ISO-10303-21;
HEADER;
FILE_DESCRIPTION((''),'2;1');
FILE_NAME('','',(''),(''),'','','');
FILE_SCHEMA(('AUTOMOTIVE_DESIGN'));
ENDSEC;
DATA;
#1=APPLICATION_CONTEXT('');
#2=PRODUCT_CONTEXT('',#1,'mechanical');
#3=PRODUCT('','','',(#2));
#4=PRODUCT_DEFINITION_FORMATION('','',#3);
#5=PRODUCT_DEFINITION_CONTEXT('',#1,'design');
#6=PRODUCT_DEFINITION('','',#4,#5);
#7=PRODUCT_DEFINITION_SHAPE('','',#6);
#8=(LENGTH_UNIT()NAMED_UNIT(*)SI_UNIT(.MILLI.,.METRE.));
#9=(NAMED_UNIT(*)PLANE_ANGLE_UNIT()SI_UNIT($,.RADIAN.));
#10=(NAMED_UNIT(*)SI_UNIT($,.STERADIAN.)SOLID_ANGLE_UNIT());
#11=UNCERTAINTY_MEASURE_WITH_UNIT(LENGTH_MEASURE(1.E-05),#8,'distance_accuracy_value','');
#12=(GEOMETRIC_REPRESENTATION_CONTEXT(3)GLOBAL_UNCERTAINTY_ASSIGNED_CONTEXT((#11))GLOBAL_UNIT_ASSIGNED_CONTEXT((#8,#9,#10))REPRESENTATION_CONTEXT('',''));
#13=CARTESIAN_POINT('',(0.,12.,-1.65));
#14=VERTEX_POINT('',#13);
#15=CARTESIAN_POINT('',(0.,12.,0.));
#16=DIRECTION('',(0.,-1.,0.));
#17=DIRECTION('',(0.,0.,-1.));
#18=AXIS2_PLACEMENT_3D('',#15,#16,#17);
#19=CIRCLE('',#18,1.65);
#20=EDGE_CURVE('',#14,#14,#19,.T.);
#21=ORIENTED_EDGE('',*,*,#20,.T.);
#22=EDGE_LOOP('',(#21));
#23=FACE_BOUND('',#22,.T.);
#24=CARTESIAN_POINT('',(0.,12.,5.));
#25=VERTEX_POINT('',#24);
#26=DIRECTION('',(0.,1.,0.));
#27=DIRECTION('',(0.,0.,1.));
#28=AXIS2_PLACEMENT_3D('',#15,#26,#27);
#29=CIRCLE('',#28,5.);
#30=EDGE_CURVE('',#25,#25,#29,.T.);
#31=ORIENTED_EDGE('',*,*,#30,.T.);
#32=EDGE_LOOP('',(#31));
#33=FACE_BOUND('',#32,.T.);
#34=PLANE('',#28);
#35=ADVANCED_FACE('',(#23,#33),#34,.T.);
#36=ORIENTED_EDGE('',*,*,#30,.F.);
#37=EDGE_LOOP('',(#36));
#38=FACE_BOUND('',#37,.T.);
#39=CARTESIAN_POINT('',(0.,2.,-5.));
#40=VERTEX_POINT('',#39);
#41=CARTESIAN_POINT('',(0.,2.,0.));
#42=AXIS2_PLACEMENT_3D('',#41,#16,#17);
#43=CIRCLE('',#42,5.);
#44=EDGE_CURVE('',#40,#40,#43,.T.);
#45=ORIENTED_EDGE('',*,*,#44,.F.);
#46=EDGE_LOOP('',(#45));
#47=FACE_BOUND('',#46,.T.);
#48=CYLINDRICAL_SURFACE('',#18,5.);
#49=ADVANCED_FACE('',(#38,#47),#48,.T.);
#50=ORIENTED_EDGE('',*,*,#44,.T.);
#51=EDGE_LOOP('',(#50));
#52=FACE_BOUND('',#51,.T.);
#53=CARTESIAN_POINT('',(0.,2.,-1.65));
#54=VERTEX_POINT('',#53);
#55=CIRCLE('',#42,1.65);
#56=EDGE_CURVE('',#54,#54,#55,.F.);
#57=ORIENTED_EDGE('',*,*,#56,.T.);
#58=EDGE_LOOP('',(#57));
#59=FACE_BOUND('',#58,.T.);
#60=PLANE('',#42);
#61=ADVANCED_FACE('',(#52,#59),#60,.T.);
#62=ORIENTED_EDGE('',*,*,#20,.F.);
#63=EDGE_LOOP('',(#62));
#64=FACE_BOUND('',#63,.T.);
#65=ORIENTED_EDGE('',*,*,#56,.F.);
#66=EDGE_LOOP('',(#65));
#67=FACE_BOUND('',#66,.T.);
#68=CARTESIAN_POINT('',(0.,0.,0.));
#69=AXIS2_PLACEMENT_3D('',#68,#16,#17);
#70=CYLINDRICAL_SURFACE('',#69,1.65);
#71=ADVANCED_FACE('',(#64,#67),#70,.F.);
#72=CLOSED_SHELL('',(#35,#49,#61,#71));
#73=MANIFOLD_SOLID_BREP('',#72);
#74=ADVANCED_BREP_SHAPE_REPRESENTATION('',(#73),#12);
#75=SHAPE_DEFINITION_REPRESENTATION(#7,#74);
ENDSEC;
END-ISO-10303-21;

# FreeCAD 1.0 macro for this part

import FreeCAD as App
import Part
import Sketcher

V = App.Vector

doc = App.newDocument("Part")
body = doc.addObject("PartDesign::Body", "Body")

sketch1 = doc.addObject("Sketcher::SketchObject", "Sketch")
body.addObject(sketch1)
sketch1.AttachmentSupport = (doc.XZ_Plane, [""])
sketch1.MapMode = "FlatFace"
sketch1.addGeometry(Part.Circle(V(0, 0, 0), V(0, 0, 1), 5), False)
sketch1.addConstraint(Sketcher.Constraint("Coincident", 0, 3, -1, 1))
sketch1.addConstraint(Sketcher.Constraint("Diameter", 0, 10.0))
pad1 = doc.addObject("PartDesign::Pad", "Pad")
body.addObject(pad1)
pad1.Profile = sketch1
pad1.Length = 12
pad1.Reversed = True

sketch2 = doc.addObject("Sketcher::SketchObject", "Sketch001")
body.addObject(sketch2)
sketch2.AttachmentSupport = (doc.XZ_Plane, [""])
sketch2.MapMode = "FlatFace"
sketch2.addGeometry(Part.Circle(V(0, 0, 0), V(0, 0, 1), 1.65), False)
sketch2.addConstraint(Sketcher.Constraint("Coincident", 0, 3, -1, 1))
sketch2.addConstraint(Sketcher.Constraint("Diameter", 0, 3.3))
doc.recompute()
hole = doc.addObject("PartDesign::Hole", "Hole")
body.addObject(hole)
hole.Profile = sketch2
hole.ThreadType = "None"
hole.Diameter = 3.3
hole.DepthType = "ThroughAll"
hole.HoleCutType = "Countersink"
hole.HoleCutDiameter = 4.05
hole.HoleCutCountersinkAngle = 90

sketch3 = doc.addObject("Sketcher::SketchObject", "Sketch002")
body.addObject(sketch3)
sketch3.AttachmentSupport = (doc.XZ_Plane, [""])
sketch3.MapMode = "FlatFace"
sketch3.addGeometry(Part.Circle(V(0, 0, 0), V(0, 0, 1), 5), False)
sketch3.addConstraint(Sketcher.Constraint("Coincident", 0, 3, -1, 1))
sketch3.addConstraint(Sketcher.Constraint("Diameter", 0, 10.0))
pocket1 = doc.addObject("PartDesign::Pocket", "Pocket")
body.addObject(pocket1)
pocket1.Profile = sketch3
pocket1.Length = 2

doc.recompute()
